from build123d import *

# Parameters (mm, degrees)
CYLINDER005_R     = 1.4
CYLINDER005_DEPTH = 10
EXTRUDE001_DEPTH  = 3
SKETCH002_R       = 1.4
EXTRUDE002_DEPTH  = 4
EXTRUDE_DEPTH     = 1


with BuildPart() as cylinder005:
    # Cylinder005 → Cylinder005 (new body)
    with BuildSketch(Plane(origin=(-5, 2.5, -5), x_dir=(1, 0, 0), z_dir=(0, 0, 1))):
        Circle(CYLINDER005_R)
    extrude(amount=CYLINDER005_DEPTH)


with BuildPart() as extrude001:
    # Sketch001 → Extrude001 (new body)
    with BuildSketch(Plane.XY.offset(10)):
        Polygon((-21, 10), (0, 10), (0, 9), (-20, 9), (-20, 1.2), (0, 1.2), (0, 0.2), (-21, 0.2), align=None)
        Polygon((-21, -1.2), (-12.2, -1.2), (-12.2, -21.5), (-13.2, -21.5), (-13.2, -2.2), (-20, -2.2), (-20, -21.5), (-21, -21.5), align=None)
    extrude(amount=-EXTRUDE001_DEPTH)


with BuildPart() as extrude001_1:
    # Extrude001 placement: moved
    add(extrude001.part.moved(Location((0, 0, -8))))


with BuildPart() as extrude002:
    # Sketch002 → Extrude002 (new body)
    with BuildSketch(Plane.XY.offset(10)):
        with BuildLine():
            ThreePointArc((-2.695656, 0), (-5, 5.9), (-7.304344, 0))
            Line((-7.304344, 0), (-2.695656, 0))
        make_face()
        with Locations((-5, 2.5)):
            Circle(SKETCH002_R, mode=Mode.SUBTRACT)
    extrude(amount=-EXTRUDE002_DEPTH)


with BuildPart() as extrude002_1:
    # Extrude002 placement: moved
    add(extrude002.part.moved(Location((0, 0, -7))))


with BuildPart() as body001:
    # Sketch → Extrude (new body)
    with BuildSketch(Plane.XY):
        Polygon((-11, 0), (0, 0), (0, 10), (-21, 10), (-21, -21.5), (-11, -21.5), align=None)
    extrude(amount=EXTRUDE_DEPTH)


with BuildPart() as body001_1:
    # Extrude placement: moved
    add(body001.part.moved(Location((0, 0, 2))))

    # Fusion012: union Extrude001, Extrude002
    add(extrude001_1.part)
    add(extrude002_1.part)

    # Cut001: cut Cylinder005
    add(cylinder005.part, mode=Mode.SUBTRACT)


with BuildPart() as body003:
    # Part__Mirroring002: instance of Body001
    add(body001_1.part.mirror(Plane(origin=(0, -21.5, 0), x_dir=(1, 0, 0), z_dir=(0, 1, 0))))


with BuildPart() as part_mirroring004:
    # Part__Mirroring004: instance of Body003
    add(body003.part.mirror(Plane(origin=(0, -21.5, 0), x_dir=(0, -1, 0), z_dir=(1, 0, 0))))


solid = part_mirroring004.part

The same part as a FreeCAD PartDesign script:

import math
import FreeCAD as App
import Part
import Sketcher
from FreeCAD import Vector


def add_polygon(sketch, points):
    """Adds a closed chain of lines whose ends are joined by coincident constraints."""
    first, n = sketch.GeometryCount, len(points)
    for a, b in zip(points, points[1:] + points[:1]):
        sketch.addGeometry(Part.LineSegment(App.Vector(*a, 0), App.Vector(*b, 0)), False)
    for i in range(n):
        sketch.addConstraint(Sketcher.Constraint("Coincident", first + i, 2, first + (i + 1) % n, 1))

doc = App.newDocument("Part")
body = doc.addObject("PartDesign::Body", "Body")

sketch1 = body.newObject("Sketcher::SketchObject", "Sketch")
sketch1.AttachmentSupport = (doc.getObject("XY_Plane"), [""])
sketch1.MapMode = "FlatFace"
sketch1.AttachmentOffset = App.Placement(Vector(0, 0, -5), App.Rotation())
sketch1.addGeometry(Part.Circle(Vector(-5, 2.5, 0), Vector(0, 0, 1), 1.4), False)
sketch1.addConstraint([
    Sketcher.Constraint("Diameter", 0, 2.8),
    Sketcher.Constraint("DistanceX", 0, 3, -1, 1, 5.0),
    Sketcher.Constraint("DistanceY", -1, 1, 0, 3, 2.5),
])
pad1 = body.newObject("PartDesign::Pad", "Pad")
pad1.Profile = sketch1
pad1.Length = 10
body2 = doc.addObject("PartDesign::Body", "Body001")
body2.AllowCompound = True

sketch2 = body2.newObject("Sketcher::SketchObject", "Sketch001")
sketch2.AttachmentSupport = (doc.getObject("XY_Plane001"), [""])
sketch2.MapMode = "FlatFace"
sketch2.AttachmentOffset = App.Placement(Vector(0, 0, 10), App.Rotation())
add_polygon(sketch2, [(0, 10), (-21, 10), (-21, 0.2), (0, 0.2), (0, 1.2), (-20, 1.2), (-20, 9), (0, 9)])
add_polygon(sketch2, [(-12.2, -1.2), (-21, -1.2), (-21, -21.5), (-20, -21.5), (-20, -2.2), (-13.2, -2.2), (-13.2, -21.5), (-12.2, -21.5)])
sketch2.addConstraint([
    Sketcher.Constraint("Horizontal", 0),
    Sketcher.Constraint("Vertical", 1),
    Sketcher.Constraint("Horizontal", 2),
    Sketcher.Constraint("Vertical", 3),
    Sketcher.Constraint("Horizontal", 4),
    Sketcher.Constraint("Vertical", 5),
    Sketcher.Constraint("Horizontal", 6),
    Sketcher.Constraint("Vertical", 7),
    Sketcher.Constraint("Horizontal", 8),
    Sketcher.Constraint("Vertical", 9),
    Sketcher.Constraint("Horizontal", 10),
    Sketcher.Constraint("Vertical", 11),
    Sketcher.Constraint("Horizontal", 12),
    Sketcher.Constraint("Vertical", 13),
    Sketcher.Constraint("Horizontal", 14),
    Sketcher.Constraint("Vertical", 15),
    Sketcher.Constraint("PointOnObject", 2, 2, -2),
    Sketcher.Constraint("PointOnObject", 6, 2, -2),
    Sketcher.Constraint("Horizontal", 10, 2, 13, 2),
    Sketcher.Constraint("Vertical", 1, 2, 8, 2),
    Sketcher.Constraint("Vertical", 5, 2, 10, 2),
    Sketcher.Constraint("Equal", 10, 14),
    Sketcher.Constraint("Equal", 14, 3),
    Sketcher.Constraint("Equal", 3, 7),
    Sketcher.Constraint("DistanceX", 0, 2, 0, 1, 21.0),
    Sketcher.Constraint("DistanceX", 4, 2, 4, 1, 20.0),
    Sketcher.Constraint("DistanceX", 8, 2, 8, 1, 8.8),
    Sketcher.Constraint("DistanceY", 1, 2, 1, 1, 9.8),
    Sketcher.Constraint("DistanceY", 9, 2, 9, 1, 20.3),
    Sketcher.Constraint("DistanceY", 11, 1, 11, 2, 19.3),
    Sketcher.Constraint("DistanceY", -1, 1, 0, 2, 10.0),
    Sketcher.Constraint("DistanceY", 8, 2, -1, 1, 1.2),
])
pad2 = body2.newObject("PartDesign::Pad", "Pad001")
pad2.Profile = sketch2
pad2.Length = 3
pad2.Reversed = True
body3 = doc.addObject("PartDesign::Body", "Body002")
body3.AllowCompound = True
doc.recompute()

body2.Placement = App.Placement(Vector(0, 0, -8), App.Rotation(Vector(0, 0, 1), 0))
boolean = body3.newObject("PartDesign::Boolean", "Boolean")
boolean.Type = "Fuse"
boolean.addObjects([body2])
body4 = doc.addObject("PartDesign::Body", "Body003")

sketch3 = body4.newObject("Sketcher::SketchObject", "Sketch002")
sketch3.AttachmentSupport = (doc.getObject("XY_Plane003"), [""])
sketch3.MapMode = "FlatFace"
sketch3.AttachmentOffset = App.Placement(Vector(0, 0, 10), App.Rotation())
sketch3.addGeometry([
    Part.ArcOfCircle(Part.Circle(Vector(-5, 2.5, 0), Vector(0, 0, 1), 3.4), math.radians(-47), math.radians(227)),
    Part.LineSegment(Vector(-7.3, 0, 0), Vector(-2.7, 0, 0)),
    Part.Circle(Vector(-5, 2.5, 0), Vector(0, 0, 1), 1.4),
], False)
sketch3.addConstraint([
    Sketcher.Constraint("Coincident", 0, 1, 1, 2),
    Sketcher.Constraint("Coincident", 1, 1, 0, 2),
    Sketcher.Constraint("Horizontal", 1),
    Sketcher.Constraint("Coincident", 2, 3, 0, 3),
    Sketcher.Constraint("PointOnObject", 0, 1, -1),
    Sketcher.Constraint("Diameter", 2, 2.8),
    Sketcher.Constraint("Radius", 0, 3.4),
    Sketcher.Constraint("DistanceX", 0, 3, -1, 1, 5.0),
    Sketcher.Constraint("DistanceY", -1, 1, 0, 3, 2.5),
])
pad3 = body4.newObject("PartDesign::Pad", "Pad002")
pad3.Profile = sketch3
pad3.Length = 4
pad3.Reversed = True
body5 = doc.addObject("PartDesign::Body", "Body004")
doc.recompute()

body4.Placement = App.Placement(Vector(0, 0, -7), App.Rotation(Vector(0, 0, 1), 0))
boolean2 = body5.newObject("PartDesign::Boolean", "Boolean001")
boolean2.Type = "Fuse"
boolean2.addObjects([body4])
body6 = doc.addObject("PartDesign::Body", "Body005")

sketch4 = body6.newObject("Sketcher::SketchObject", "Sketch003")
sketch4.AttachmentSupport = (doc.getObject("XY_Plane005"), [""])
sketch4.MapMode = "FlatFace"
add_polygon(sketch4, [(-11, 0), (0, 0), (0, 10), (-21, 10), (-21, -22), (-11, -22)])
sketch4.addConstraint([
    Sketcher.Constraint("Horizontal", 0),
    Sketcher.Constraint("Vertical", 1),
    Sketcher.Constraint("Horizontal", 2),
    Sketcher.Constraint("Vertical", 3),
    Sketcher.Constraint("Horizontal", 4),
    Sketcher.Constraint("Vertical", 5),
    Sketcher.Constraint("Coincident", 0, 2, -1, 1),
    Sketcher.Constraint("Equal", 4, 1),
    Sketcher.Constraint("DistanceX", 0, 1, 0, 2, 11.0),
    Sketcher.Constraint("DistanceX", 2, 2, 2, 1, 21.0),
    Sketcher.Constraint("DistanceY", 3, 2, 3, 1, 31.5),
])
pad4 = body6.newObject("PartDesign::Pad", "Pad003")
pad4.Profile = sketch4
pad4.Length = 1
body7 = doc.addObject("PartDesign::Body", "Body006")
doc.recompute()

body6.Placement = App.Placement(Vector(0, 0, 2), App.Rotation(Vector(0, 0, 1), 0))
boolean3 = body7.newObject("PartDesign::Boolean", "Boolean002")
boolean3.Type = "Fuse"
boolean3.addObjects([body6])
doc.recompute()

boolean4 = body7.newObject("PartDesign::Boolean", "Boolean003")
boolean4.Type = "Fuse"
boolean4.addObjects([body3])
doc.recompute()

boolean5 = body7.newObject("PartDesign::Boolean", "Boolean004")
boolean5.Type = "Fuse"
boolean5.addObjects([body5])
doc.recompute()

boolean6 = body7.newObject("PartDesign::Boolean", "Boolean005")
boolean6.Type = "Cut"
boolean6.addObjects([body])
body8 = doc.addObject("PartDesign::Body", "Body007")
doc.recompute()

mirroring = doc.addObject("Part::Mirroring", "Mirroring")
mirroring.Source = body7
mirroring.Base = Vector(0, -21.5, 0)
mirroring.Normal = Vector(0, 1, 0)
body8.BaseFeature = mirroring
doc.recompute()
body9 = doc.addObject("PartDesign::Body", "Body008")
doc.recompute()

mirroring2 = doc.addObject("Part::Mirroring", "Mirroring001")
mirroring2.Source = body8
mirroring2.Base = Vector(0, -21.5, 0)
mirroring2.Normal = Vector(1, 0, 0)
body9.BaseFeature = mirroring2
doc.recompute()
body7.Visibility = False
body8.Visibility = False
mirroring.Visibility = False
mirroring2.Visibility = False

doc.recompute()
